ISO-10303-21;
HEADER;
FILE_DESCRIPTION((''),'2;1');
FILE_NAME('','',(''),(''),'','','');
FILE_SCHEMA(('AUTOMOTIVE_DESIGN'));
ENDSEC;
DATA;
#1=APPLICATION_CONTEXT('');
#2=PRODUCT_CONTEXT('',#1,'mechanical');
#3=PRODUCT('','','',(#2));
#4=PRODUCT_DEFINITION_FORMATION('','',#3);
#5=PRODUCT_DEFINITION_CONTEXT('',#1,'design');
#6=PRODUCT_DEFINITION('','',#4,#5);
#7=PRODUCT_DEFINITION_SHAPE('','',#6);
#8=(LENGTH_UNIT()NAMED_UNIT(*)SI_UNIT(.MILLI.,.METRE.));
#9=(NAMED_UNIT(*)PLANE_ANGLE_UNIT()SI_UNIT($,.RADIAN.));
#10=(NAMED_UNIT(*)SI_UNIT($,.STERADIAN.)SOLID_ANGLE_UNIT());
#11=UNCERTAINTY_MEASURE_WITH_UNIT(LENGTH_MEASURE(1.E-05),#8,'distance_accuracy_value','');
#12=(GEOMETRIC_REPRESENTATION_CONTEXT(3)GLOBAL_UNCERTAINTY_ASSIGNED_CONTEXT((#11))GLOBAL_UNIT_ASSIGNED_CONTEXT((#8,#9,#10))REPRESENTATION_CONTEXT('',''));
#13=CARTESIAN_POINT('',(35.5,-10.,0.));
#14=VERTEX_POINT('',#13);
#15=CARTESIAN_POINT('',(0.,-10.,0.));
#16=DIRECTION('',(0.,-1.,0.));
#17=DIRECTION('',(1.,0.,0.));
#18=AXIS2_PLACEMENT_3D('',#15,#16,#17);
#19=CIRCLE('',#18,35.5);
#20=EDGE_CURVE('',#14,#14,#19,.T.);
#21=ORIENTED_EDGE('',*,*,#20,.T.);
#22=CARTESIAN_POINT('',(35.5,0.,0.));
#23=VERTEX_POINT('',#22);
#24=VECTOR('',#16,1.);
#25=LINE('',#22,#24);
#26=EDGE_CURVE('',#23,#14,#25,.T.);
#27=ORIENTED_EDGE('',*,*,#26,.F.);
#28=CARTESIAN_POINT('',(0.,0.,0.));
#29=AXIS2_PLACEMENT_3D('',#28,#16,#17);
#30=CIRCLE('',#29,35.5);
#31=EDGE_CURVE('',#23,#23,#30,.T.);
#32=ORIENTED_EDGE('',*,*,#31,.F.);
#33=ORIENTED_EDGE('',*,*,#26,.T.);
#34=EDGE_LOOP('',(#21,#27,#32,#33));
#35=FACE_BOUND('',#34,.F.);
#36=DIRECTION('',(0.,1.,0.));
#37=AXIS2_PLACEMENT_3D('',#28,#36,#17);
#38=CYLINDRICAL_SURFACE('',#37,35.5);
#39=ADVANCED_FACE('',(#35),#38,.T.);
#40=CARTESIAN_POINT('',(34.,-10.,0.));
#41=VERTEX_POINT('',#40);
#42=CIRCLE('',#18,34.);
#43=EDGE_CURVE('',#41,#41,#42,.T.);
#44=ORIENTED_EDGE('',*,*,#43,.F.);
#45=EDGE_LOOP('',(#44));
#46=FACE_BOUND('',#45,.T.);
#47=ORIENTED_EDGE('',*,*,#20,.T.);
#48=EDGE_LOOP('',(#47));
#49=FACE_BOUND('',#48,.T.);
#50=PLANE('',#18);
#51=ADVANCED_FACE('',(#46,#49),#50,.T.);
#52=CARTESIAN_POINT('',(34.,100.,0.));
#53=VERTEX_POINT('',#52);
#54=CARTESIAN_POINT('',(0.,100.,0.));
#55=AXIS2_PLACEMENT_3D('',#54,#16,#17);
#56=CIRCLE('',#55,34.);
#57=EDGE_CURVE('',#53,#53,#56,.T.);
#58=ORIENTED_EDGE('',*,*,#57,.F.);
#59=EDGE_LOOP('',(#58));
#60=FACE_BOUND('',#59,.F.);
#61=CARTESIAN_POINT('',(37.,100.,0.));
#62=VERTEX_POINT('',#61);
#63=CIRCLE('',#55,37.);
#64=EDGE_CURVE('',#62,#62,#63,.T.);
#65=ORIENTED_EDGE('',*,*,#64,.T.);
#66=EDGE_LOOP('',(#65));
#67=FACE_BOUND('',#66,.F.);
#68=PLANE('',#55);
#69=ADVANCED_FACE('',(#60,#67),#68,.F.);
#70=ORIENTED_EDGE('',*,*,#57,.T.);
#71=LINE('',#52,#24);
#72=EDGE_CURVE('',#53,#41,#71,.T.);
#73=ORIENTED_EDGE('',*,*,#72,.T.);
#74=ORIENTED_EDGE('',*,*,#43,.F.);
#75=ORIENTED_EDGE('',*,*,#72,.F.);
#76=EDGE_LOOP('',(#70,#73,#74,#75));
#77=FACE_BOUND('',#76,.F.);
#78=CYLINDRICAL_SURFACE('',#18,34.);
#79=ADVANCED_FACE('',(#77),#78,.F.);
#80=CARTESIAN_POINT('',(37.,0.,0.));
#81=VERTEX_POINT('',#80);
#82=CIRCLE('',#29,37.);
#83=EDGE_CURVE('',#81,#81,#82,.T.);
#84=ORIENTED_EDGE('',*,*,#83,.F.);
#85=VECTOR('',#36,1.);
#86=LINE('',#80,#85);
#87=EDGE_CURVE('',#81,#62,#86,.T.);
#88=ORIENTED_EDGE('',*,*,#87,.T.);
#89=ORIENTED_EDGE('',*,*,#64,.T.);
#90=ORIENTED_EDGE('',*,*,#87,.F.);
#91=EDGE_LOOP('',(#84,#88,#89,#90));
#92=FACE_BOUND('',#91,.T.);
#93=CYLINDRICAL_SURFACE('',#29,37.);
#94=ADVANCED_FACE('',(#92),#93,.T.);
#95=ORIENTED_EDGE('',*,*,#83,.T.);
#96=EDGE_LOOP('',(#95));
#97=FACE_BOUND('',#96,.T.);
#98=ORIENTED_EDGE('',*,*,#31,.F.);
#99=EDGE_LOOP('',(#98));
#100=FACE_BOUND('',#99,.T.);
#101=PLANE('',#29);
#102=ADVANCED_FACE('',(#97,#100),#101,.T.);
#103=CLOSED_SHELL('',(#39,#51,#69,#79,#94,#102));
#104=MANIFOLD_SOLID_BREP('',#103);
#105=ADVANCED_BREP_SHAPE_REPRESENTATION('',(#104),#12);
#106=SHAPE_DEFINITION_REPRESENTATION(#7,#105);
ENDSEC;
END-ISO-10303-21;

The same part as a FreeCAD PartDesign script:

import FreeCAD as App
import Part
import Sketcher
Q = App.Units.Quantity

doc = App.newDocument("Part")
body = doc.addObject("PartDesign::Body", "Body")

# Sketch on XZ plane
sketch1 = body.newObject("Sketcher::SketchObject", "Sketch")
sketch1.AttachmentSupport = (doc.getObject("XZ_Plane"), [""])
sketch1.MapMode = "FlatFace"
sketch1.addGeometry([
    Part.Circle(App.Vector(0, 0, 0), App.Vector(0, 0, 1), 37),
    Part.Circle(App.Vector(0, 0, 0), App.Vector(0, 0, 1), 34),
], False)
sketch1.addConstraint([
    Sketcher.Constraint("Coincident", 0, 3, -1, 1),
    Sketcher.Constraint("Coincident", 1, 3, -1, 1),
    Sketcher.Constraint("Diameter", 0, Q("74 mm")),
    Sketcher.Constraint("Diameter", 1, Q("68 mm")),
])
pad1 = body.newObject("PartDesign::Pad", "Pad")
pad1.Profile = sketch1
pad1.Length = 100
pad1.Reversed = True

# Sketch on XZ plane
sketch2 = body.newObject("Sketcher::SketchObject", "Sketch001")
sketch2.AttachmentSupport = (doc.getObject("XZ_Plane"), [""])
sketch2.MapMode = "FlatFace"
sketch2.addGeometry(Part.Circle(App.Vector(0, 0, 0), App.Vector(0, 0, 1), 36), False)
sketch2.addConstraint([
    Sketcher.Constraint("Coincident", 0, 3, -1, 1),
    Sketcher.Constraint("Diameter", 0, Q("71 mm")),
])
pad2 = body.newObject("PartDesign::Pad", "Pad001")
pad2.Profile = sketch2
pad2.Length = 10

# Sketch on XZ plane
sketch3 = body.newObject("Sketcher::SketchObject", "Sketch002")
sketch3.AttachmentSupport = (doc.getObject("XZ_Plane"), [""])
sketch3.MapMode = "FlatFace"
sketch3.AttachmentOffset = App.Placement(App.Vector(0, 0, 10), App.Rotation())
sketch3.addGeometry(Part.Circle(App.Vector(0, 0, 0), App.Vector(0, 0, 1), 34), False)
sketch3.addConstraint([
    Sketcher.Constraint("Coincident", 0, 3, -1, 1),
    Sketcher.Constraint("Diameter", 0, Q("68 mm")),
])
pocket1 = body.newObject("PartDesign::Pocket", "Pocket")
pocket1.Profile = sketch3
pocket1.Length = 25

doc.recompute()
